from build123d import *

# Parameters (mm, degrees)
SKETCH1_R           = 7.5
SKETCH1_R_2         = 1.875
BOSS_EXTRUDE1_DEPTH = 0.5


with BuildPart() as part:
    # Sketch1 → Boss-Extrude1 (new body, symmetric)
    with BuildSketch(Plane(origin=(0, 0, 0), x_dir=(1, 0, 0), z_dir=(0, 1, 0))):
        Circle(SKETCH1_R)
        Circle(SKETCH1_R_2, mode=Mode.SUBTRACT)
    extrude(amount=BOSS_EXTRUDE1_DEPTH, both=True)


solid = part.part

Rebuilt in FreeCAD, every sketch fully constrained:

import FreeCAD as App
import Part
import Sketcher
Q = App.Units.Quantity

doc = App.newDocument("Part")
body = doc.addObject("PartDesign::Body", "Body")

# Sketch on XZ plane
sketch1 = body.newObject("Sketcher::SketchObject", "Sketch")
sketch1.AttachmentSupport = (doc.getObject("XZ_Plane"), [""])
sketch1.MapMode = "FlatFace"
sketch1.addGeometry([
    Part.Circle(App.Vector(0, 0, 0), App.Vector(0, 0, 1), 7.5),
    Part.Circle(App.Vector(0, 0, 0), App.Vector(0, 0, 1), 1.875),
], False)
sketch1.addConstraint([
    Sketcher.Constraint("Coincident", 0, 3, -1, 1),
    Sketcher.Constraint("Coincident", 1, 3, -1, 1),
    Sketcher.Constraint("Diameter", 0, Q("15 mm")),
    Sketcher.Constraint("Diameter", 1, Q("3.75 mm")),
])
pad1 = body.newObject("PartDesign::Pad", "Pad")
pad1.Profile = sketch1
pad1.Length = 1
pad1.Midplane = True

doc.recompute()
